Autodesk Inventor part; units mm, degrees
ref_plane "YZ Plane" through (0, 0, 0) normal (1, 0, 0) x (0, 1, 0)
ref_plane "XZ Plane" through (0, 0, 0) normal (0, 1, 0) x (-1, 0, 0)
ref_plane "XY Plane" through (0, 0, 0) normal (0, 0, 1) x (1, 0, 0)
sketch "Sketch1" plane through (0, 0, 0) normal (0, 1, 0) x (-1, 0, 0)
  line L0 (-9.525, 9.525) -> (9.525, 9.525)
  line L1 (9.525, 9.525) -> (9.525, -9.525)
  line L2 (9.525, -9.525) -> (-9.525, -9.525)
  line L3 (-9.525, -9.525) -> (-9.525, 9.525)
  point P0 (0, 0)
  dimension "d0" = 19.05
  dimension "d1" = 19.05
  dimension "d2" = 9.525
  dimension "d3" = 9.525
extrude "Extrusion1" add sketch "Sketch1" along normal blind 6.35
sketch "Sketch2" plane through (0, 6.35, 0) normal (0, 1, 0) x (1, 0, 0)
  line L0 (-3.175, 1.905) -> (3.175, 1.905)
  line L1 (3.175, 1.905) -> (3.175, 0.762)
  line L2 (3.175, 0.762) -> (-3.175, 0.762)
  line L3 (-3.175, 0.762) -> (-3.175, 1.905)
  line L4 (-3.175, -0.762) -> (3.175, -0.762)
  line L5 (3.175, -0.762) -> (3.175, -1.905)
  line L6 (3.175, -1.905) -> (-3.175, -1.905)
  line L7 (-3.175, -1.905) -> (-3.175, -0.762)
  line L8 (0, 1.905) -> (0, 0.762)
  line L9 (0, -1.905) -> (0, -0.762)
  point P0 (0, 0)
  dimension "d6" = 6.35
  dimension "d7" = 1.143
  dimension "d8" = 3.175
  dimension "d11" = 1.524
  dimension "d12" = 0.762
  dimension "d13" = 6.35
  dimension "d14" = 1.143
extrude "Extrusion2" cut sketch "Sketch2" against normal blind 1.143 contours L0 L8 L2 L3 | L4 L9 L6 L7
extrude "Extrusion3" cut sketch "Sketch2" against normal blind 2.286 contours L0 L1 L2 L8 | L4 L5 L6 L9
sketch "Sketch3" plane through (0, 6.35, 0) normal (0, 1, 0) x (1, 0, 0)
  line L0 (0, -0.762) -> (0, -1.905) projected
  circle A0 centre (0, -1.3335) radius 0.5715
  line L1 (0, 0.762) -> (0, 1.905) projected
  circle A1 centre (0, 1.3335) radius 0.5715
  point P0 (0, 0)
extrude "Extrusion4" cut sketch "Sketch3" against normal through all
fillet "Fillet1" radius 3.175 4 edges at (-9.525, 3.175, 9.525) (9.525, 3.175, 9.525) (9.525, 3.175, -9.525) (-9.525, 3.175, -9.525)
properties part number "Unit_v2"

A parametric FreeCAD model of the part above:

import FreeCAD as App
import Part
import Sketcher
from FreeCAD import Vector
Q = App.Units.Quantity


def edges_at(feature, points):
    """Names of the edges that pass closest to the given points."""
    edges = feature.Shape.Edges
    near = lambda p: min(range(len(edges)), key=lambda i: edges[i].distToShape(Part.Vertex(*p))[0])
    return sorted({f"Edge{near(p) + 1}" for p in points})

doc = App.newDocument("Part")
body = doc.addObject("PartDesign::Body", "Body")

# Sketch on XZ plane
sketch1 = body.newObject("Sketcher::SketchObject", "Sketch")
sketch1.AttachmentSupport = (doc.getObject("XZ_Plane"), [""])
sketch1.MapMode = "FlatFace"
sketch1.addGeometry([
    Part.LineSegment(Vector(-9.525, 9.525, 0), Vector(9.525, 9.525, 0)),
    Part.LineSegment(Vector(9.525, 9.525, 0), Vector(9.525, -9.525, 0)),
    Part.LineSegment(Vector(9.525, -9.525, 0), Vector(-9.525, -9.525, 0)),
    Part.LineSegment(Vector(-9.525, -9.525, 0), Vector(-9.525, 9.525, 0)),
], False)
sketch1.addConstraint([
    Sketcher.Constraint("Coincident", 0, 2, 1, 1),
    Sketcher.Constraint("Coincident", 1, 2, 2, 1),
    Sketcher.Constraint("Coincident", 2, 2, 3, 1),
    Sketcher.Constraint("Coincident", 3, 2, 0, 1),
    Sketcher.Constraint("Horizontal", 0),
    Sketcher.Constraint("Vertical", 1),
    Sketcher.Constraint("Horizontal", 2),
    Sketcher.Constraint("Vertical", 3),
    Sketcher.Constraint("Symmetric", 0, 2, 2, 2, -1, 1),
    Sketcher.Constraint("Equal", 2, 1),
    Sketcher.Constraint("DistanceX", 0, 1, 0, 2, Q("0.75 in")),
])
pad1 = body.newObject("PartDesign::Pad", "Pad")
pad1.Profile = sketch1
pad1.Length = Q("0.25 in")
pad1.Reversed = True

# Sketch on XZ plane
sketch2 = body.newObject("Sketcher::SketchObject", "Sketch001")
sketch2.AttachmentSupport = (doc.getObject("XZ_Plane"), [""])
sketch2.MapMode = "FlatFace"
sketch2.AttachmentOffset = App.Placement(Vector(0, 0, -0.25 * 25.4), App.Rotation())
sketch2.addGeometry([
    Part.LineSegment(Vector(0, -1.905, 0), Vector(-3.175, -1.905, 0)),  # 0
    Part.LineSegment(Vector(-3.175, -1.905, 0), Vector(-3.175, -0.762, 0)),  # 1
    Part.LineSegment(Vector(-3.175, -0.762, 0), Vector(0, -0.762, 0)),  # 2
    Part.LineSegment(Vector(0, -0.762, 0), Vector(0, -1.905, 0)),  # 3
    Part.LineSegment(Vector(0, 0.762, 0), Vector(-3.175, 0.762, 0)),  # 4
    Part.LineSegment(Vector(-3.175, 0.762, 0), Vector(-3.175, 1.905, 0)),  # 5
    Part.LineSegment(Vector(-3.175, 1.905, 0), Vector(0, 1.905, 0)),  # 6
    Part.LineSegment(Vector(0, 1.905, 0), Vector(0, 0.762, 0)),  # 7
], False)
sketch2.addConstraint([
    Sketcher.Constraint("Coincident", 0, 2, 1, 1),
    Sketcher.Constraint("Coincident", 1, 2, 2, 1),
    Sketcher.Constraint("Coincident", 2, 2, 3, 1),
    Sketcher.Constraint("Coincident", 3, 2, 0, 1),
    Sketcher.Constraint("Coincident", 4, 2, 5, 1),
    Sketcher.Constraint("Coincident", 5, 2, 6, 1),
    Sketcher.Constraint("Coincident", 6, 2, 7, 1),
    Sketcher.Constraint("Coincident", 7, 2, 4, 1),
    Sketcher.Constraint("Horizontal", 0),
    Sketcher.Constraint("Vertical", 1),
    Sketcher.Constraint("Horizontal", 2),
    Sketcher.Constraint("Vertical", 3),
    Sketcher.Constraint("Horizontal", 4),
    Sketcher.Constraint("Vertical", 5),
    Sketcher.Constraint("Horizontal", 6),
    Sketcher.Constraint("Vertical", 7),
    Sketcher.Constraint("Symmetric", 3, 2, 6, 2, -1, 1),
    Sketcher.Constraint("Symmetric", 1, 2, 4, 2, -1),
    Sketcher.Constraint("PointOnObject", 2, 2, -2),
    Sketcher.Constraint("DistanceX", 0, 2, 0, 1, Q("0.125 in")),
    Sketcher.Constraint("DistanceY", 1, 1, 1, 2, Q("0.045 in")),
    Sketcher.Constraint("DistanceY", 1, 2, -1, 1, Q("0.03 in")),
])
pocket1 = body.newObject("PartDesign::Pocket", "Pocket")
pocket1.Profile = sketch2
pocket1.Length = Q("0.045 in")
pocket1.Reversed = True

# Sketch on XZ plane
sketch3 = body.newObject("Sketcher::SketchObject", "Sketch002")
sketch3.AttachmentSupport = (doc.getObject("XZ_Plane"), [""])
sketch3.MapMode = "FlatFace"
sketch3.AttachmentOffset = App.Placement(Vector(0, 0, -0.25 * 25.4), App.Rotation())
sketch3.addGeometry([
    Part.LineSegment(Vector(3.175, -1.905, 0), Vector(0, -1.905, 0)),  # 0
    Part.LineSegment(Vector(0, -1.905, 0), Vector(0, -0.762, 0)),  # 1
    Part.LineSegment(Vector(0, -0.762, 0), Vector(3.175, -0.762, 0)),  # 2
    Part.LineSegment(Vector(3.175, -0.762, 0), Vector(3.175, -1.905, 0)),  # 3
    Part.LineSegment(Vector(3.175, 0.762, 0), Vector(0, 0.762, 0)),  # 4
    Part.LineSegment(Vector(0, 0.762, 0), Vector(0, 1.905, 0)),  # 5
    Part.LineSegment(Vector(0, 1.905, 0), Vector(3.175, 1.905, 0)),  # 6
    Part.LineSegment(Vector(3.175, 1.905, 0), Vector(3.175, 0.762, 0)),  # 7
], False)
sketch3.addConstraint([
    Sketcher.Constraint("Coincident", 0, 2, 1, 1),
    Sketcher.Constraint("Coincident", 1, 2, 2, 1),
    Sketcher.Constraint("Coincident", 2, 2, 3, 1),
    Sketcher.Constraint("Coincident", 3, 2, 0, 1),
    Sketcher.Constraint("Coincident", 4, 2, 5, 1),
    Sketcher.Constraint("Coincident", 5, 2, 6, 1),
    Sketcher.Constraint("Coincident", 6, 2, 7, 1),
    Sketcher.Constraint("Coincident", 7, 2, 4, 1),
    Sketcher.Constraint("Horizontal", 0),
    Sketcher.Constraint("Vertical", 1),
    Sketcher.Constraint("Horizontal", 2),
    Sketcher.Constraint("Vertical", 3),
    Sketcher.Constraint("Horizontal", 4),
    Sketcher.Constraint("Vertical", 5),
    Sketcher.Constraint("Horizontal", 6),
    Sketcher.Constraint("Vertical", 7),
    Sketcher.Constraint("Symmetric", 1, 2, 4, 2, -1, 1),
    Sketcher.Constraint("Symmetric", 0, 2, 5, 2, -1),
    Sketcher.Constraint("Vertical", 3, 2, 6, 2),
    Sketcher.Constraint("DistanceX", 0, 2, 0, 1, Q("0.125 in")),
    Sketcher.Constraint("DistanceY", 1, 1, 1, 2, Q("0.045 in")),
    Sketcher.Constraint("DistanceY", 1, 2, -1, 1, Q("0.03 in")),
])
pocket2 = body.newObject("PartDesign::Pocket", "Pocket001")
pocket2.Profile = sketch3
pocket2.Length = Q("0.09 in")
pocket2.Reversed = True

# Sketch on XZ plane
sketch4 = body.newObject("Sketcher::SketchObject", "Sketch003")
sketch4.AttachmentSupport = (doc.getObject("XZ_Plane"), [""])
sketch4.MapMode = "FlatFace"
sketch4.AttachmentOffset = App.Placement(Vector(0, 0, -0.25 * 25.4), App.Rotation())
sketch4.addGeometry([
    Part.Circle(Vector(0, 1.3335, 0), Vector(0, 0, 1), 0.5715),
    Part.Circle(Vector(0, -1.3335, 0), Vector(0, 0, 1), 0.5715),
], False)
sketch4.addConstraint([
    Sketcher.Constraint("Equal", 0, 1),
    Sketcher.Constraint("Symmetric", 0, 3, 1, 3, -1, 1),
    Sketcher.Constraint("PointOnObject", 0, 3, -2),
    Sketcher.Constraint("Diameter", 0, Q("0.045 in")),
    Sketcher.Constraint("DistanceY", 1, 3, 0, 3, Q("0.105 in")),
])
pocket3 = body.newObject("PartDesign::Pocket", "Pocket002")
pocket3.Profile = sketch4
pocket3.Type = "ThroughAll"
pocket3.Reversed = True
doc.recompute()

fillet = body.newObject("PartDesign::Fillet", "Fillet")
fillet.Base = (pocket3, edges_at(pocket3, [
    (-9.525, 3.175, 9.525),
    (9.525, 3.175, 9.525),
    (9.525, 3.175, -9.525),
    (-9.525, 3.175, -9.525),
]))
fillet.Radius = Q("0.125 in")

doc.recompute()
